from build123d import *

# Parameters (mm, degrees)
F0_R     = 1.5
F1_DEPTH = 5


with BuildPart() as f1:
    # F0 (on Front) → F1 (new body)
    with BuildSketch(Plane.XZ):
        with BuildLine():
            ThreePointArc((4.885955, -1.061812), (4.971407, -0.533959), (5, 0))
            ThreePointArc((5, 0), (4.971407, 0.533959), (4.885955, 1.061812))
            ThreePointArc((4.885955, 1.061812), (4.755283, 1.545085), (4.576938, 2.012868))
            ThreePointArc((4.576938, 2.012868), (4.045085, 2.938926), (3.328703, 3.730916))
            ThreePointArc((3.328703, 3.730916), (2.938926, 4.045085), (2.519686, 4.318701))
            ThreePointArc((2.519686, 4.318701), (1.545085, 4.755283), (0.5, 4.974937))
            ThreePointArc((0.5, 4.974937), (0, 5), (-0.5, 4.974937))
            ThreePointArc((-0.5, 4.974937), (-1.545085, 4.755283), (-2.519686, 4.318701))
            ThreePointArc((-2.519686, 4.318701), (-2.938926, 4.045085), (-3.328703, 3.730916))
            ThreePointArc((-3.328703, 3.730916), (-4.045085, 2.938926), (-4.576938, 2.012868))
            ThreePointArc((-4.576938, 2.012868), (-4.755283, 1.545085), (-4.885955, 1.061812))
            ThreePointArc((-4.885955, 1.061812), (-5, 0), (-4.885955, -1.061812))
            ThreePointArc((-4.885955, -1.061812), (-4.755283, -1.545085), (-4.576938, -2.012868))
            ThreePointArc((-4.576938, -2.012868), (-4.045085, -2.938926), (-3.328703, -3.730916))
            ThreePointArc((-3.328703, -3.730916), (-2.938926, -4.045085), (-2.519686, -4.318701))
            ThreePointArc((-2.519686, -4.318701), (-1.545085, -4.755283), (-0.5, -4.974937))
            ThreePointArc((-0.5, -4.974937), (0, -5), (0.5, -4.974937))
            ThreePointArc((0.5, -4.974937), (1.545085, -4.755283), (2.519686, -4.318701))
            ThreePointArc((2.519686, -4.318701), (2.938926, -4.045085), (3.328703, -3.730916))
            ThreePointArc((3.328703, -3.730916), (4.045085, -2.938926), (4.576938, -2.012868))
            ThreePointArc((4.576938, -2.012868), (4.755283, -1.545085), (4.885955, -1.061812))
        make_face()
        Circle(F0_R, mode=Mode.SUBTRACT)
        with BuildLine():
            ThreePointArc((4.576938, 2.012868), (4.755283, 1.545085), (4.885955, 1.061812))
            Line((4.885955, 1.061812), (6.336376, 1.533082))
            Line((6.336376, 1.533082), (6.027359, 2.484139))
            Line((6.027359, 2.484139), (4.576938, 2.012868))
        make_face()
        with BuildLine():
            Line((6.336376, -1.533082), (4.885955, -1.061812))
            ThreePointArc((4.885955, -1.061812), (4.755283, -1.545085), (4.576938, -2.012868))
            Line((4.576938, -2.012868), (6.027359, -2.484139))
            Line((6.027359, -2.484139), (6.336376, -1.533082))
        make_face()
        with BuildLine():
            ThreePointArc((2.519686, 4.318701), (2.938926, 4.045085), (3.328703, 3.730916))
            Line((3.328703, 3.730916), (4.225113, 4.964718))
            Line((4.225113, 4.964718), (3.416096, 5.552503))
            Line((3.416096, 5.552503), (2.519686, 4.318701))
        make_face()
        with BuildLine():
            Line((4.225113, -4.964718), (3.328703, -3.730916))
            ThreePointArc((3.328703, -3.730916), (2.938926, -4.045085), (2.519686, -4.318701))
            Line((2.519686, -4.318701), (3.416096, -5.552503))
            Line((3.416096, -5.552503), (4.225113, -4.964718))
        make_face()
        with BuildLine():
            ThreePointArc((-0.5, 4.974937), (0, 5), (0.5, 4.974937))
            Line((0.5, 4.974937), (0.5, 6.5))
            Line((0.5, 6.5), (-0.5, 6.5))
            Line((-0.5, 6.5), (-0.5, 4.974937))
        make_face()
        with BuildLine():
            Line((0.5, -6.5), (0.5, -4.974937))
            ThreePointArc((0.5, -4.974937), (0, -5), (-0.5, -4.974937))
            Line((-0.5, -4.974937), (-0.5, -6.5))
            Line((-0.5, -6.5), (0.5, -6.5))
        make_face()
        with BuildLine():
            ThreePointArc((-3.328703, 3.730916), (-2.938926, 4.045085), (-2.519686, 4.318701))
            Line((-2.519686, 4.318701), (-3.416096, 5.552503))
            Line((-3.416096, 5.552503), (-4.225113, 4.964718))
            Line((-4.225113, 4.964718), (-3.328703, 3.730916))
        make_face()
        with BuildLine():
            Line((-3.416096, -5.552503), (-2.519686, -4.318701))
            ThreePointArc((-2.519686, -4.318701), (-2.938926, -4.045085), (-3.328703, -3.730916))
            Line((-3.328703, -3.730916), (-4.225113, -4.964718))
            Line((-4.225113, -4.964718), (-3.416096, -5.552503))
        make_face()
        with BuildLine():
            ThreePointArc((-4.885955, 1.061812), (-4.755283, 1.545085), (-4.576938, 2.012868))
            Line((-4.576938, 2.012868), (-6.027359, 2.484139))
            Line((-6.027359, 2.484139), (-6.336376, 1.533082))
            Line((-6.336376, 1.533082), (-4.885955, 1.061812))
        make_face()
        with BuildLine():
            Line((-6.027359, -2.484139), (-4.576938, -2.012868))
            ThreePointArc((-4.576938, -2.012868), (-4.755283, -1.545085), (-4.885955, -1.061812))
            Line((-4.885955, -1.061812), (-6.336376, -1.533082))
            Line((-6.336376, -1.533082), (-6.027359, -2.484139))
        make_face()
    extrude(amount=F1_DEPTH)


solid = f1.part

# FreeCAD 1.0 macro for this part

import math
import FreeCAD as App
import Part
import Sketcher

V = App.Vector
Q = App.Units.Quantity

doc = App.newDocument("Part")
params = doc.addObject("Spreadsheet::Sheet", "Params")
for row, (alias, value) in enumerate([
    ("sketch1_diameter", "3 mm"),
    ("sketch1_radius", "4.999999 mm"),
    ("sketch1_width", "1 mm"),
    ("sketch1_length", "1 mm"),
    ("pad1_length", "5 mm"),
], start=1):
    params.set(f"A{row}", alias)
    params.set(f"B{row}", "=" + value)
    params.setAlias(f"B{row}", alias)

body = doc.addObject("PartDesign::Body", "Body")

# Sketch on XZ plane
sketch1 = body.newObject("Sketcher::SketchObject", "Sketch")
sketch1.AttachmentSupport = (doc.getObject("XZ_Plane"), [""])
sketch1.MapMode = "FlatFace"
sketch1.addGeometry([
    Part.ArcOfCircle(Part.Circle(V(-0.000013, 0.000001, 0), V(0, 0, 1), 5.000013), math.radians(-12.26081), math.radians(-0.00001)),  # 0
    Part.ArcOfCircle(Part.Circle(V(-0.000013, -0.000001, 0), V(0, 0, 1), 5.000013), math.radians(0.00001), math.radians(12.26081)),  # 1
    Part.LineSegment(V(4.885955, 1.061812, 0), V(6.336376, 1.533082, 0)),  # 2
    Part.LineSegment(V(6.336376, 1.533082, 0), V(6.027359, 2.484139, 0)),  # 3
    Part.LineSegment(V(6.027359, 2.484139, 0), V(4.576938, 2.012868, 0)),  # 4
    Part.ArcOfCircle(Part.Circle(V(0.000001, 0, 0), V(0, 0, 1), 4.999999), math.radians(23.739167), math.radians(48.260836)),  # 5
    Part.LineSegment(V(3.328703, 3.730916, 0), V(4.225113, 4.964718, 0)),  # 6
    Part.LineSegment(V(4.225113, 4.964718, 0), V(3.416096, 5.552503, 0)),  # 7
    Part.LineSegment(V(3.416096, 5.552503, 0), V(2.519686, 4.318701, 0)),  # 8
    Part.ArcOfCircle(Part.Circle(V(0.000009, 0.00003, 0), V(0, 0, 1), 4.999969), math.radians(59.739089), math.radians(84.260899)),  # 9
    Part.LineSegment(V(0.5, 4.974937, 0), V(0.5, 6.5, 0)),  # 10
    Part.LineSegment(V(0.5, 6.5, 0), V(-0.5, 6.5, 0)),  # 11
    Part.LineSegment(V(-0.5, 6.5, 0), V(-0.5, 4.974937, 0)),  # 12
    Part.ArcOfCircle(Part.Circle(V(-0.000009, 0.00003, 0), V(0, 0, 1), 4.999969), math.radians(95.739101), math.radians(120.260911)),  # 13
    Part.LineSegment(V(-2.519686, 4.318701, 0), V(-3.416096, 5.552503, 0)),  # 14
    Part.LineSegment(V(-3.416096, 5.552503, 0), V(-4.225113, 4.964718, 0)),  # 15
    Part.LineSegment(V(-4.225113, 4.964718, 0), V(-3.328703, 3.730916, 0)),  # 16
    Part.ArcOfCircle(Part.Circle(V(-0.000001, 0, 0), V(0, 0, 1), 4.999999), math.radians(131.739164), math.radians(156.260833)),  # 17
    Part.LineSegment(V(-4.576938, 2.012868, 0), V(-6.027359, 2.484139, 0)),  # 18
    Part.LineSegment(V(-6.027359, 2.484139, 0), V(-6.336376, 1.533082, 0)),  # 19
    Part.LineSegment(V(-6.336376, 1.533082, 0), V(-4.885955, 1.061812, 0)),  # 20
    Part.ArcOfCircle(Part.Circle(V(0.000004, 0, 0), V(0, 0, 1), 5.000004), math.radians(167.73918), math.radians(192.26082)),  # 21
    Part.LineSegment(V(-4.885955, -1.061812, 0), V(-6.336376, -1.533082, 0)),  # 22
    Part.LineSegment(V(-6.336376, -1.533082, 0), V(-6.027359, -2.484139, 0)),  # 23
    Part.LineSegment(V(-6.027359, -2.484139, 0), V(-4.576938, -2.012868, 0)),  # 24
    Part.ArcOfCircle(Part.Circle(V(-0.000001, 0, 0), V(0, 0, 1), 4.999999), math.radians(-156.260833), math.radians(-131.739164)),  # 25
    Part.LineSegment(V(-3.328703, -3.730916, 0), V(-4.225113, -4.964718, 0)),  # 26
    Part.LineSegment(V(-4.225113, -4.964718, 0), V(-3.416096, -5.552503, 0)),  # 27
    Part.LineSegment(V(-3.416096, -5.552503, 0), V(-2.519686, -4.318701, 0)),  # 28
    Part.ArcOfCircle(Part.Circle(V(-0.000009, -0.00003, 0), V(0, 0, 1), 4.999969), math.radians(-120.260911), math.radians(-95.739101)),  # 29
    Part.LineSegment(V(-0.5, -4.974937, 0), V(-0.5, -6.5, 0)),  # 30
    Part.LineSegment(V(-0.5, -6.5, 0), V(0.5, -6.5, 0)),  # 31
    Part.LineSegment(V(0.5, -6.5, 0), V(0.5, -4.974937, 0)),  # 32
    Part.ArcOfCircle(Part.Circle(V(0.000009, -0.00003, 0), V(0, 0, 1), 4.999969), math.radians(-84.260899), math.radians(-59.739089)),  # 33
    Part.LineSegment(V(2.519686, -4.318701, 0), V(3.416096, -5.552503, 0)),  # 34
    Part.LineSegment(V(3.416096, -5.552503, 0), V(4.225113, -4.964718, 0)),  # 35
    Part.LineSegment(V(4.225113, -4.964718, 0), V(3.328703, -3.730916, 0)),  # 36
    Part.ArcOfCircle(Part.Circle(V(0.000001, 0, 0), V(0, 0, 1), 4.999999), math.radians(-48.260836), math.radians(-23.739167)),  # 37
    Part.LineSegment(V(4.576938, -2.012868, 0), V(6.027359, -2.484139, 0)),  # 38
    Part.LineSegment(V(6.027359, -2.484139, 0), V(6.336376, -1.533082, 0)),  # 39
    Part.LineSegment(V(6.336376, -1.533082, 0), V(4.885955, -1.061812, 0)),  # 40
    Part.Circle(V(0, 0, 0), V(0, 0, 1), 1.5),  # 41
], False)
sketch1.addConstraint([
    Sketcher.Constraint("Tangent", 0, 2, 1, 1),
    Sketcher.Constraint("Coincident", 1, 2, 2, 1),
    Sketcher.Constraint("Coincident", 2, 2, 3, 1),
    Sketcher.Constraint("Coincident", 3, 2, 4, 1),
    Sketcher.Constraint("Coincident", 4, 2, 5, 1),
    Sketcher.Constraint("Coincident", 5, 2, 6, 1),
    Sketcher.Constraint("Coincident", 6, 2, 7, 1),
    Sketcher.Constraint("Coincident", 7, 2, 8, 1),
    Sketcher.Constraint("Coincident", 8, 2, 9, 1),
    Sketcher.Constraint("Coincident", 9, 2, 10, 1),
    Sketcher.Constraint("Coincident", 10, 2, 11, 1),
    Sketcher.Constraint("Coincident", 11, 2, 12, 1),
    Sketcher.Constraint("Coincident", 12, 2, 13, 1),
    Sketcher.Constraint("Coincident", 13, 2, 14, 1),
    Sketcher.Constraint("Coincident", 14, 2, 15, 1),
    Sketcher.Constraint("Coincident", 15, 2, 16, 1),
    Sketcher.Constraint("Coincident", 16, 2, 17, 1),
    Sketcher.Constraint("Coincident", 17, 2, 18, 1),
    Sketcher.Constraint("Coincident", 18, 2, 19, 1),
    Sketcher.Constraint("Coincident", 19, 2, 20, 1),
    Sketcher.Constraint("Coincident", 20, 2, 21, 1),
    Sketcher.Constraint("Coincident", 21, 2, 22, 1),
    Sketcher.Constraint("Coincident", 22, 2, 23, 1),
    Sketcher.Constraint("Coincident", 23, 2, 24, 1),
    Sketcher.Constraint("Coincident", 24, 2, 25, 1),
    Sketcher.Constraint("Coincident", 25, 2, 26, 1),
    Sketcher.Constraint("Coincident", 26, 2, 27, 1),
    Sketcher.Constraint("Coincident", 27, 2, 28, 1),
    Sketcher.Constraint("Coincident", 28, 2, 29, 1),
    Sketcher.Constraint("Coincident", 29, 2, 30, 1),
    Sketcher.Constraint("Coincident", 30, 2, 31, 1),
    Sketcher.Constraint("Coincident", 31, 2, 32, 1),
    Sketcher.Constraint("Coincident", 32, 2, 33, 1),
    Sketcher.Constraint("Coincident", 33, 2, 34, 1),
    Sketcher.Constraint("Coincident", 34, 2, 35, 1),
    Sketcher.Constraint("Coincident", 35, 2, 36, 1),
    Sketcher.Constraint("Coincident", 36, 2, 37, 1),
    Sketcher.Constraint("Coincident", 37, 2, 38, 1),
    Sketcher.Constraint("Coincident", 38, 2, 39, 1),
    Sketcher.Constraint("Coincident", 39, 2, 40, 1),
    Sketcher.Constraint("Coincident", 40, 2, 0, 1),
    Sketcher.Constraint("Vertical", 10),
    Sketcher.Constraint("Horizontal", 11),
    Sketcher.Constraint("Vertical", 12),
    Sketcher.Constraint("Vertical", 30),
    Sketcher.Constraint("Horizontal", 31),
    Sketcher.Constraint("Vertical", 32),
    Sketcher.Constraint("Coincident", 5, 3, -1, 1),
    Sketcher.Constraint("Coincident", 17, 3, -1, 1),
    Sketcher.Constraint("Coincident", 21, 3, -1, 1),
    Sketcher.Constraint("Coincident", 25, 3, -1, 1),
    Sketcher.Constraint("Coincident", 37, 3, -1, 1),
    Sketcher.Constraint("Coincident", 41, 3, -1, 1),
    Sketcher.Constraint("Equal", 0, 1),
    Sketcher.Constraint("Equal", 9, 13),
    Sketcher.Constraint("Equal", 5, 17),
    Sketcher.Constraint("Equal", 17, 25),
    Sketcher.Constraint("Equal", 13, 29),
    Sketcher.Constraint("Equal", 29, 33),
    Sketcher.Constraint("Equal", 25, 37),
    Sketcher.Constraint("Symmetric", 9, 3, 29, 3, -1, 1),
    Sketcher.Constraint("Symmetric", 13, 3, 33, 3, -1, 1),
    Sketcher.Constraint("Symmetric", 1, 2, 21, 2, -1, 1),
    Sketcher.Constraint("Symmetric", 2, 2, 22, 2, -1, 1),
    Sketcher.Constraint("Symmetric", 3, 2, 23, 2, -1, 1),
    Sketcher.Constraint("Symmetric", 6, 2, 26, 2, -1, 1),
    Sketcher.Constraint("Symmetric", 7, 2, 27, 2, -1, 1),
    Sketcher.Constraint("Symmetric", 10, 2, 30, 2, -1, 1),
    Sketcher.Constraint("Symmetric", 14, 2, 34, 2, -1, 1),
    Sketcher.Constraint("Symmetric", 15, 2, 35, 2, -1, 1),
    Sketcher.Constraint("Symmetric", 18, 2, 38, 2, -1, 1),
    Sketcher.Constraint("Symmetric", 19, 2, 39, 2, -1, 1),
    Sketcher.Constraint("Symmetric", 20, 2, 40, 2, -1, 1),
    Sketcher.Constraint("Symmetric", 9, 3, 13, 3, -2),
    Sketcher.Constraint("Symmetric", 7, 2, 14, 2, -2),
    Sketcher.Constraint("Symmetric", 6, 2, 15, 2, -2),
    Sketcher.Constraint("Symmetric", 3, 2, 18, 2, -2),
    Sketcher.Constraint("Symmetric", 2, 2, 19, 2, -2),
    Sketcher.Constraint("PointOnObject", 0, 2, -1),
    Sketcher.Constraint("Perpendicular", 2, 3),
    Sketcher.Constraint("Perpendicular", 3, 4),
    Sketcher.Constraint("Perpendicular", 6, 7),
    Sketcher.Constraint("Perpendicular", 7, 8),
    Sketcher.Constraint("Perpendicular", 14, 15),
    Sketcher.Constraint("Perpendicular", 15, 16),
    Sketcher.Constraint("Perpendicular", 18, 19),
    Sketcher.Constraint("Perpendicular", 19, 20),
    Sketcher.Constraint("Perpendicular", 23, 24),
    Sketcher.Constraint("Parallel", 8, 26),
    Sketcher.Constraint("Perpendicular", 27, 28),
    Sketcher.Constraint("Parallel", 16, 34),
    Sketcher.Constraint("Perpendicular", 35, 36),
    Sketcher.Constraint("Parallel", 20, 38),
    Sketcher.Constraint("Horizontal", 9, 2, 12, 2),
    Sketcher.Constraint("Horizontal", 29, 2, 32, 2),
    Sketcher.Constraint("Equal", 2, 4),
    Sketcher.Constraint("Equal", 4, 6),
    Sketcher.Constraint("Equal", 3, 7),
    Sketcher.Constraint("Equal", 6, 8),
    Sketcher.Constraint("Diameter", 41, Q("3 mm")),
    Sketcher.Constraint("Radius", 5, Q("4.999999 mm")),
    Sketcher.Constraint("DistanceX", 11, 2, 11, 1, Q("1 mm")),
    Sketcher.Constraint("Angle", 2, Q("17.999987 deg")),
    Sketcher.Constraint("Angle", 6, Q("53.999989 deg")),
    Sketcher.Constraint("Distance", 3, Q("1 mm")),
    Sketcher.Constraint("DistanceX", -1, 1, 0, 2, Q("5 mm")),
    Sketcher.Constraint("DistanceY", -1, 1, 10, 2, Q("6.5 mm")),
    Sketcher.Constraint("Radius", 9, Q("4.999969 mm")),
    Sketcher.Constraint("Radius", 0, Q("5.000013 mm")),
    Sketcher.Constraint("DistanceY", -1, 1, 8, 2, Q("4.318701 mm")),
    Sketcher.Constraint("DistanceY", 8, 2, 7, 2, Q("1.233802 mm")),
    Sketcher.Constraint("DistanceY", 10, 1, 10, 2, Q("1.525063 mm")),
])
sketch1.setExpression("Constraints[99]", "Params.sketch1_diameter")
sketch1.setExpression("Constraints[100]", "Params.sketch1_radius")
sketch1.setExpression("Constraints[101]", "Params.sketch1_width")
sketch1.setExpression("Constraints[104]", "Params.sketch1_length")
pad1 = body.newObject("PartDesign::Pad", "Pad")
pad1.Profile = sketch1
pad1.setExpression("Length", "Params.pad1_length")

doc.recompute()
